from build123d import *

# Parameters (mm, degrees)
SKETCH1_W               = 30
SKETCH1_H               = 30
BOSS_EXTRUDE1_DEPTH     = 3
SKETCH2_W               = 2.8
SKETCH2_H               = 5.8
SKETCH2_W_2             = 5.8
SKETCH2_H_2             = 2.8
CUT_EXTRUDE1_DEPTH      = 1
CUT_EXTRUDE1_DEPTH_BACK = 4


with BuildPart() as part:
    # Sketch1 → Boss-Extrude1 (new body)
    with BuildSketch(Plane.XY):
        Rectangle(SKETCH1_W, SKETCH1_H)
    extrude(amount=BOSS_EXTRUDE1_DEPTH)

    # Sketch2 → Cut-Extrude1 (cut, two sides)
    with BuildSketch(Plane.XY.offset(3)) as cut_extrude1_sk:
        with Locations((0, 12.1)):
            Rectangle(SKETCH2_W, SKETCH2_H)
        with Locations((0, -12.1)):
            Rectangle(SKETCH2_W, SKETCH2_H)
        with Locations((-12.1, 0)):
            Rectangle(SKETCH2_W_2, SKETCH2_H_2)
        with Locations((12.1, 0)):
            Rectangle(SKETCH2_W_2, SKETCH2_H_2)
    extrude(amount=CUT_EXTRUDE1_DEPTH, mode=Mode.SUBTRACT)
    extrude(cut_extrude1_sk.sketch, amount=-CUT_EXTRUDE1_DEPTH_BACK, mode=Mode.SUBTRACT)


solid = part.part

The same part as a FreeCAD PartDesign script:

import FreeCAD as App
import Part
import Sketcher

V = App.Vector


def add_polygon(sketch, points):
    """Adds a closed chain of lines whose ends are joined by coincident constraints."""
    first, n = sketch.GeometryCount, len(points)
    for a, b in zip(points, points[1:] + points[:1]):
        sketch.addGeometry(Part.LineSegment(App.Vector(*a, 0), App.Vector(*b, 0)), False)
    for i in range(n):
        sketch.addConstraint(Sketcher.Constraint("Coincident", first + i, 2, first + (i + 1) % n, 1))

doc = App.newDocument("Part")
body = doc.addObject("PartDesign::Body", "Body")

sketch1 = doc.addObject("Sketcher::SketchObject", "Sketch")
body.addObject(sketch1)
sketch1.AttachmentSupport = (doc.XY_Plane, [""])
sketch1.MapMode = "FlatFace"
add_polygon(sketch1, [(-15, 15), (-15, -15), (15, -15), (15, 15)])
sketch1.addConstraint([
    Sketcher.Constraint("Vertical", 0),
    Sketcher.Constraint("Horizontal", 1),
    Sketcher.Constraint("Vertical", 2),
    Sketcher.Constraint("Horizontal", 3),
    Sketcher.Constraint("Symmetric", 0, 2, 2, 2, -1, 1),
    Sketcher.Constraint("Equal", 3, 0),
    Sketcher.Constraint("DistanceX", 1, 1, 1, 2, 30.0),
])
pad1 = doc.addObject("PartDesign::Pad", "Pad")
body.addObject(pad1)
pad1.Profile = sketch1
pad1.Length = 3

sketch2 = doc.addObject("Sketcher::SketchObject", "Sketch001")
body.addObject(sketch2)
sketch2.AttachmentSupport = (doc.XY_Plane, [""])
sketch2.MapMode = "FlatFace"
sketch2.AttachmentOffset = App.Placement(V(0, 0, 3), App.Rotation())
add_polygon(sketch2, [(-1.4, 15), (-1.4, 9.2), (1.4, 9.2), (1.4, 15)])
add_polygon(sketch2, [(-1.4, -9.2), (-1.4, -15), (1.4, -15), (1.4, -9.2)])
add_polygon(sketch2, [(-15, 1.4), (-15, -1.4), (-9.2, -1.4), (-9.2, 1.4)])
add_polygon(sketch2, [(9.2, 1.4), (9.2, -1.4), (15, -1.4), (15, 1.4)])
sketch2.addConstraint([
    Sketcher.Constraint("Vertical", 0),
    Sketcher.Constraint("Horizontal", 1),
    Sketcher.Constraint("Vertical", 2),
    Sketcher.Constraint("Horizontal", 3),
    Sketcher.Constraint("Vertical", 4),
    Sketcher.Constraint("Horizontal", 5),
    Sketcher.Constraint("Vertical", 6),
    Sketcher.Constraint("Horizontal", 7),
    Sketcher.Constraint("Vertical", 8),
    Sketcher.Constraint("Horizontal", 9),
    Sketcher.Constraint("Vertical", 10),
    Sketcher.Constraint("Horizontal", 11),
    Sketcher.Constraint("Vertical", 12),
    Sketcher.Constraint("Horizontal", 13),
    Sketcher.Constraint("Vertical", 14),
    Sketcher.Constraint("Horizontal", 15),
    Sketcher.Constraint("Symmetric", 2, 2, 4, 2, -1, 1),
    Sketcher.Constraint("Symmetric", 0, 2, 6, 2, -1, 1),
    Sketcher.Constraint("Symmetric", 10, 2, 12, 2, -1, 1),
    Sketcher.Constraint("Symmetric", 8, 2, 14, 2, -1, 1),
    Sketcher.Constraint("Horizontal", 9, 2, 12, 2),
    Sketcher.Constraint("Vertical", 3, 2, 4, 2),
    Sketcher.Constraint("Equal", 15, 0),
    Sketcher.Constraint("Equal", 7, 8),
    Sketcher.Constraint("DistanceX", 1, 1, 1, 2, 2.8),
    Sketcher.Constraint("DistanceX", 9, 1, 9, 2, 5.8),
    Sketcher.Constraint("DistanceY", -1, 1, 2, 2, 15.0),
    Sketcher.Constraint("DistanceX", 8, 2, -1, 1, 15.0),
])
pocket1 = doc.addObject("PartDesign::Pocket", "Pocket")
body.addObject(pocket1)
pocket1.Profile = sketch2
pocket1.Type = "ThroughAll"
pocket1.Midplane = True

doc.recompute()
